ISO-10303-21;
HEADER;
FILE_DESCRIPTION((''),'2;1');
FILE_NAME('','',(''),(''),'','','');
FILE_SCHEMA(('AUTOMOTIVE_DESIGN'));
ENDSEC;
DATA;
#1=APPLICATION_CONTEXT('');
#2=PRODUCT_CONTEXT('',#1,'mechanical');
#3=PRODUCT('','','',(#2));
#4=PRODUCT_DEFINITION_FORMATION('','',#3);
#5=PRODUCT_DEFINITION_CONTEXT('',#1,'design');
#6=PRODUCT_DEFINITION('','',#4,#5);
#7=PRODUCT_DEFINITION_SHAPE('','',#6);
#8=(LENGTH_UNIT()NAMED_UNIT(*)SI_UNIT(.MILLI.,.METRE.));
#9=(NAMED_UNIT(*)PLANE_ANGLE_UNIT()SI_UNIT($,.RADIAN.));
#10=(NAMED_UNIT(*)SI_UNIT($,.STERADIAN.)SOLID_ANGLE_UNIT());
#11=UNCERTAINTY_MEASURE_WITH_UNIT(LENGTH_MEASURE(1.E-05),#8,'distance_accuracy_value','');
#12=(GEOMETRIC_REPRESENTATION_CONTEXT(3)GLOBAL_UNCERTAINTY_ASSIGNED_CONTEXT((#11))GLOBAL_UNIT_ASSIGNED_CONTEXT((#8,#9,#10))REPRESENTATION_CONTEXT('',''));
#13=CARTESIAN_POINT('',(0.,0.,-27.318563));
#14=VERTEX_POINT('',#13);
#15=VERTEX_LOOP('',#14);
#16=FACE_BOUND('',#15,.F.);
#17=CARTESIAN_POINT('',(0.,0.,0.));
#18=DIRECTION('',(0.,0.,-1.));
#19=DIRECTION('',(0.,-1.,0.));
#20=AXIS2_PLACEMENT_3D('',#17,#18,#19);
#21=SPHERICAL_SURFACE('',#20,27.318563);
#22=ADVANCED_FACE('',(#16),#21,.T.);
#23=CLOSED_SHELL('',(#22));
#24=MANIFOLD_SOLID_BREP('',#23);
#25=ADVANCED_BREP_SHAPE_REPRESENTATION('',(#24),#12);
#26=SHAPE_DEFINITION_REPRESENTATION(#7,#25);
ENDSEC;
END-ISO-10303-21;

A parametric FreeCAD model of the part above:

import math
import FreeCAD as App
import Part
import Sketcher
from FreeCAD import Vector
Q = App.Units.Quantity

doc = App.newDocument("Part")
body = doc.addObject("PartDesign::Body", "Body")

# Sketch on YZ plane
sketch1 = doc.addObject("Sketcher::SketchObject", "Sketch")
body.addObject(sketch1)
sketch1.AttachmentSupport = (doc.YZ_Plane, [""])
sketch1.MapMode = "FlatFace"
sketch1.addGeometry([
    Part.LineSegment(Vector(0, -27, 0), Vector(0, 27, 0)),
    Part.ArcOfCircle(Part.Circle(Vector(0, 0, 0), Vector(0, 0, 1), 27), math.radians(90), math.radians(270)),
], False)
sketch1.addConstraint([
    Sketcher.Constraint("Coincident", 0, 1, 1, 2),
    Sketcher.Constraint("Coincident", 1, 1, 0, 2),
    Sketcher.Constraint("Vertical", 0),
    Sketcher.Constraint("Coincident", 1, 3, -1, 1),
    Sketcher.Constraint("PointOnObject", 0, 1, -2),
    Sketcher.Constraint("Radius", 1, Q("27.318563 mm")),
])
revolution = doc.addObject("PartDesign::Revolution", "Revolution")
body.addObject(revolution)
revolution.Profile = sketch1
revolution.ReferenceAxis = (sketch1, ["V_Axis"])
revolution.Angle = 360

doc.recompute()
